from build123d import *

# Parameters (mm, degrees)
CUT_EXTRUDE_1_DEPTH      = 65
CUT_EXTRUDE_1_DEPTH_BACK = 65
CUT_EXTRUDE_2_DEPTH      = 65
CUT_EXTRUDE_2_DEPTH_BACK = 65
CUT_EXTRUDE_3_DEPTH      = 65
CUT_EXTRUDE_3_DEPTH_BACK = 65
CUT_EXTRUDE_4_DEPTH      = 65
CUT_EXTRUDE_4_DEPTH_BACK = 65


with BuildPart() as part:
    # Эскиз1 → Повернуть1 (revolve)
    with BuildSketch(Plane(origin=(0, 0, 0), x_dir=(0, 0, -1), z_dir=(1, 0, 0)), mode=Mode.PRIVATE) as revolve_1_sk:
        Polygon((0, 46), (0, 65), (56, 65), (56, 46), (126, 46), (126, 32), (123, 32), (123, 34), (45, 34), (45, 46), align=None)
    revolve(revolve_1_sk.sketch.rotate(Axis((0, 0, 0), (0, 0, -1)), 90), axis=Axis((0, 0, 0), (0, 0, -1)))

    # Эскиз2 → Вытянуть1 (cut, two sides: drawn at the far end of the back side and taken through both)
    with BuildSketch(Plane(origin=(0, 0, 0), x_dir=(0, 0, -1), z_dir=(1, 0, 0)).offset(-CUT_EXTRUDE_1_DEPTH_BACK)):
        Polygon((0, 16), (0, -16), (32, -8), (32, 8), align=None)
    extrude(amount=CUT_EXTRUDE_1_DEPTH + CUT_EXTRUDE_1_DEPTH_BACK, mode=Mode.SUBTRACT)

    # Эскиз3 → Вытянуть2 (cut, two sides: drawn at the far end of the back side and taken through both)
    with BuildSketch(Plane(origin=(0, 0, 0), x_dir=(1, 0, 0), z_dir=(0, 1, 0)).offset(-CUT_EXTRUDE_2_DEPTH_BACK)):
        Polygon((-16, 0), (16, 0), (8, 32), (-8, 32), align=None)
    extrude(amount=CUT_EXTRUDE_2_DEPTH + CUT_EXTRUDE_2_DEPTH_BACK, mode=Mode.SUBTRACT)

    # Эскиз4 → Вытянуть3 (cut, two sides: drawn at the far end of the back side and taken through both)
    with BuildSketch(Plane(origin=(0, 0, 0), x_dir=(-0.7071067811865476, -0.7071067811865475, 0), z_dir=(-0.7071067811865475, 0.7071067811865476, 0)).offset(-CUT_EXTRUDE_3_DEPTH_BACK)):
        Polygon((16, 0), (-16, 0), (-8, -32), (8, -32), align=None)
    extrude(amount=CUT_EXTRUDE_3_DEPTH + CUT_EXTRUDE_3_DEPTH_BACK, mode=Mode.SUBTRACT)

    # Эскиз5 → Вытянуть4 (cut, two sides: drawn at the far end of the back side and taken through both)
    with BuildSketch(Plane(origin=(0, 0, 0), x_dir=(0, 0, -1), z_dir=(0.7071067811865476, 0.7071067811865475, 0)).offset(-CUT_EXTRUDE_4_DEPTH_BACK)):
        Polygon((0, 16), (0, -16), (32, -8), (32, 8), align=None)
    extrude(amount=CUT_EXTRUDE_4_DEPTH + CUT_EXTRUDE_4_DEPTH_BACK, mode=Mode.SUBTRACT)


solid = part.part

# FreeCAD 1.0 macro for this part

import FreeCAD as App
import Part
import Sketcher
Q = App.Units.Quantity

doc = App.newDocument("Part")
body = doc.addObject("PartDesign::Body", "Body")

# Sketch on YZ plane
sketch1 = doc.addObject("Sketcher::SketchObject", "Sketch")
body.addObject(sketch1)
sketch1.AttachmentSupport = (doc.YZ_Plane, [""])
sketch1.MapMode = "FlatFace"
sketch1.addGeometry([
    Part.LineSegment(App.Vector(65, 0, 0), App.Vector(46, 0, 0)),  # 0
    Part.LineSegment(App.Vector(46, 0, 0), App.Vector(46, -45, 0)),  # 1
    Part.LineSegment(App.Vector(46, -45, 0), App.Vector(34, -45, 0)),  # 2
    Part.LineSegment(App.Vector(34, -45, 0), App.Vector(34, -123, 0)),  # 3
    Part.LineSegment(App.Vector(34, -123, 0), App.Vector(32, -123, 0)),  # 4
    Part.LineSegment(App.Vector(32, -123, 0), App.Vector(32, -126, 0)),  # 5
    Part.LineSegment(App.Vector(32, -126, 0), App.Vector(46, -126, 0)),  # 6
    Part.LineSegment(App.Vector(46, -126, 0), App.Vector(46, -56, 0)),  # 7
    Part.LineSegment(App.Vector(46, -56, 0), App.Vector(65, -56, 0)),  # 8
    Part.LineSegment(App.Vector(65, -56, 0), App.Vector(65, 0, 0)),  # 9
], False)
sketch1.addConstraint([
    Sketcher.Constraint("Coincident", 0, 2, 1, 1),
    Sketcher.Constraint("Coincident", 1, 2, 2, 1),
    Sketcher.Constraint("Coincident", 2, 2, 3, 1),
    Sketcher.Constraint("Coincident", 3, 2, 4, 1),
    Sketcher.Constraint("Coincident", 4, 2, 5, 1),
    Sketcher.Constraint("Coincident", 5, 2, 6, 1),
    Sketcher.Constraint("Coincident", 6, 2, 7, 1),
    Sketcher.Constraint("Coincident", 7, 2, 8, 1),
    Sketcher.Constraint("Coincident", 8, 2, 9, 1),
    Sketcher.Constraint("Coincident", 9, 2, 0, 1),
    Sketcher.Constraint("Horizontal", 0),
    Sketcher.Constraint("Vertical", 1),
    Sketcher.Constraint("Horizontal", 2),
    Sketcher.Constraint("Vertical", 3),
    Sketcher.Constraint("Horizontal", 4),
    Sketcher.Constraint("Vertical", 5),
    Sketcher.Constraint("Horizontal", 6),
    Sketcher.Constraint("Vertical", 7),
    Sketcher.Constraint("Horizontal", 8),
    Sketcher.Constraint("Vertical", 9),
    Sketcher.Constraint("PointOnObject", 0, 2, -1),
    Sketcher.Constraint("Vertical", 1, 2, 6, 2),
    Sketcher.Constraint("DistanceX", 0, 2, 0, 1, Q("19 mm")),
    Sketcher.Constraint("DistanceX", 2, 2, 2, 1, Q("12 mm")),
    Sketcher.Constraint("DistanceX", 4, 2, 4, 1, Q("2 mm")),
    Sketcher.Constraint("DistanceY", 1, 2, 1, 1, Q("45 mm")),
    Sketcher.Constraint("DistanceY", 3, 2, 3, 1, Q("78 mm")),
    Sketcher.Constraint("DistanceY", 5, 2, 5, 1, Q("3 mm")),
    Sketcher.Constraint("DistanceY", 7, 1, 7, 2, Q("70 mm")),
    Sketcher.Constraint("DistanceX", -1, 1, 0, 2, Q("46 mm")),
])
revolution = doc.addObject("PartDesign::Revolution", "Revolution")
body.addObject(revolution)
revolution.Profile = sketch1
revolution.ReferenceAxis = (sketch1, ["V_Axis"])
revolution.Angle = 360

# Sketch on YZ plane
sketch2 = doc.addObject("Sketcher::SketchObject", "Sketch001")
body.addObject(sketch2)
sketch2.AttachmentSupport = (doc.YZ_Plane, [""])
sketch2.MapMode = "FlatFace"
sketch2.addGeometry([
    Part.LineSegment(App.Vector(16, 0, 0), App.Vector(-16, 0, 0)),
    Part.LineSegment(App.Vector(-16, 0, 0), App.Vector(-8, -32, 0)),
    Part.LineSegment(App.Vector(-8, -32, 0), App.Vector(8, -32, 0)),
    Part.LineSegment(App.Vector(8, -32, 0), App.Vector(16, 0, 0)),
], False)
sketch2.addConstraint([
    Sketcher.Constraint("Coincident", 0, 2, 1, 1),
    Sketcher.Constraint("Coincident", 1, 2, 2, 1),
    Sketcher.Constraint("Coincident", 2, 2, 3, 1),
    Sketcher.Constraint("Coincident", 3, 2, 0, 1),
    Sketcher.Constraint("Horizontal", 0),
    Sketcher.Constraint("Horizontal", 2),
    Sketcher.Constraint("Symmetric", 0, 2, 3, 2, -1, 1),
    Sketcher.Constraint("Equal", 1, 3),
    Sketcher.Constraint("DistanceX", 0, 2, 0, 1, Q("32 mm")),
    Sketcher.Constraint("DistanceX", 2, 1, 2, 2, Q("16 mm")),
    Sketcher.Constraint("DistanceY", 1, 2, -1, 1, Q("32 mm")),
])
pocket1 = doc.addObject("PartDesign::Pocket", "Pocket")
body.addObject(pocket1)
pocket1.Profile = sketch2
pocket1.Type = "ThroughAll"
pocket1.Midplane = True

# Sketch on XZ plane
sketch3 = doc.addObject("Sketcher::SketchObject", "Sketch002")
body.addObject(sketch3)
sketch3.AttachmentSupport = (doc.XZ_Plane, [""])
sketch3.MapMode = "FlatFace"
sketch3.addGeometry([
    Part.LineSegment(App.Vector(-16, 0, 0), App.Vector(16, 0, 0)),
    Part.LineSegment(App.Vector(16, 0, 0), App.Vector(8, -32, 0)),
    Part.LineSegment(App.Vector(8, -32, 0), App.Vector(-8, -32, 0)),
    Part.LineSegment(App.Vector(-8, -32, 0), App.Vector(-16, 0, 0)),
], False)
sketch3.addConstraint([
    Sketcher.Constraint("Coincident", 0, 2, 1, 1),
    Sketcher.Constraint("Coincident", 1, 2, 2, 1),
    Sketcher.Constraint("Coincident", 2, 2, 3, 1),
    Sketcher.Constraint("Coincident", 3, 2, 0, 1),
    Sketcher.Constraint("Horizontal", 0),
    Sketcher.Constraint("Horizontal", 2),
    Sketcher.Constraint("Symmetric", 0, 2, 3, 2, -1, 1),
    Sketcher.Constraint("Equal", 1, 3),
    Sketcher.Constraint("DistanceX", 0, 1, 0, 2, Q("32 mm")),
    Sketcher.Constraint("DistanceX", 2, 2, 2, 1, Q("16 mm")),
    Sketcher.Constraint("DistanceY", 1, 2, -1, 1, Q("32 mm")),
])
pocket2 = doc.addObject("PartDesign::Pocket", "Pocket001")
body.addObject(pocket2)
pocket2.Profile = sketch3
pocket2.Type = "ThroughAll"
pocket2.Midplane = True

# Sketch on an angled plane
sketch4 = doc.addObject("Sketcher::SketchObject", "Sketch003")
body.addObject(sketch4)
sketch4.Placement = App.Placement(App.Vector(0, 0, 0), App.Rotation(App.Vector(-0.707106781, -0.707106781, 0), App.Vector(0, 0, 0.999999999), App.Vector(-0.707106781, 0.707106781, 0), "ZXY"))
sketch4.addGeometry([
    Part.LineSegment(App.Vector(16, 0, 0), App.Vector(-16, 0, 0)),
    Part.LineSegment(App.Vector(-16, 0, 0), App.Vector(-8, -32, 0)),
    Part.LineSegment(App.Vector(-8, -32, 0), App.Vector(8, -32, 0)),
    Part.LineSegment(App.Vector(8, -32, 0), App.Vector(16, 0, 0)),
], False)
sketch4.addConstraint([
    Sketcher.Constraint("Coincident", 0, 2, 1, 1),
    Sketcher.Constraint("Coincident", 1, 2, 2, 1),
    Sketcher.Constraint("Coincident", 2, 2, 3, 1),
    Sketcher.Constraint("Coincident", 3, 2, 0, 1),
    Sketcher.Constraint("Horizontal", 0),
    Sketcher.Constraint("Horizontal", 2),
    Sketcher.Constraint("Symmetric", 0, 2, 3, 2, -1, 1),
    Sketcher.Constraint("Equal", 1, 3),
    Sketcher.Constraint("DistanceX", 0, 2, 0, 1, Q("32 mm")),
    Sketcher.Constraint("DistanceX", 2, 1, 2, 2, Q("16 mm")),
    Sketcher.Constraint("DistanceY", 1, 2, -1, 1, Q("32 mm")),
])
pocket3 = doc.addObject("PartDesign::Pocket", "Pocket002")
body.addObject(pocket3)
pocket3.Profile = sketch4
pocket3.Type = "ThroughAll"
pocket3.Midplane = True

# Sketch on an angled plane
sketch5 = doc.addObject("Sketcher::SketchObject", "Sketch004")
body.addObject(sketch5)
sketch5.Placement = App.Placement(App.Vector(0, 0, 0), App.Rotation(App.Vector(0, 0, -1), App.Vector(-0.707106781, 0.707106781, 0), App.Vector(0.707106781, 0.707106781, 0), "ZXY"))
sketch5.addGeometry([
    Part.LineSegment(App.Vector(0, 16, 0), App.Vector(0, -16, 0)),
    Part.LineSegment(App.Vector(0, -16, 0), App.Vector(32, -8, 0)),
    Part.LineSegment(App.Vector(32, -8, 0), App.Vector(32, 8, 0)),
    Part.LineSegment(App.Vector(32, 8, 0), App.Vector(0, 16, 0)),
], False)
sketch5.addConstraint([
    Sketcher.Constraint("Coincident", 0, 2, 1, 1),
    Sketcher.Constraint("Coincident", 1, 2, 2, 1),
    Sketcher.Constraint("Coincident", 2, 2, 3, 1),
    Sketcher.Constraint("Coincident", 3, 2, 0, 1),
    Sketcher.Constraint("Vertical", 0),
    Sketcher.Constraint("Vertical", 2),
    Sketcher.Constraint("Symmetric", 0, 2, 3, 2, -1, 1),
    Sketcher.Constraint("Equal", 1, 3),
    Sketcher.Constraint("DistanceY", 0, 2, 0, 1, Q("32 mm")),
    Sketcher.Constraint("DistanceY", 2, 1, 2, 2, Q("16 mm")),
    Sketcher.Constraint("DistanceX", -1, 1, 1, 2, Q("32 mm")),
])
pocket4 = doc.addObject("PartDesign::Pocket", "Pocket003")
body.addObject(pocket4)
pocket4.Profile = sketch5
pocket4.Type = "ThroughAll"
pocket4.Midplane = True

doc.recompute()
